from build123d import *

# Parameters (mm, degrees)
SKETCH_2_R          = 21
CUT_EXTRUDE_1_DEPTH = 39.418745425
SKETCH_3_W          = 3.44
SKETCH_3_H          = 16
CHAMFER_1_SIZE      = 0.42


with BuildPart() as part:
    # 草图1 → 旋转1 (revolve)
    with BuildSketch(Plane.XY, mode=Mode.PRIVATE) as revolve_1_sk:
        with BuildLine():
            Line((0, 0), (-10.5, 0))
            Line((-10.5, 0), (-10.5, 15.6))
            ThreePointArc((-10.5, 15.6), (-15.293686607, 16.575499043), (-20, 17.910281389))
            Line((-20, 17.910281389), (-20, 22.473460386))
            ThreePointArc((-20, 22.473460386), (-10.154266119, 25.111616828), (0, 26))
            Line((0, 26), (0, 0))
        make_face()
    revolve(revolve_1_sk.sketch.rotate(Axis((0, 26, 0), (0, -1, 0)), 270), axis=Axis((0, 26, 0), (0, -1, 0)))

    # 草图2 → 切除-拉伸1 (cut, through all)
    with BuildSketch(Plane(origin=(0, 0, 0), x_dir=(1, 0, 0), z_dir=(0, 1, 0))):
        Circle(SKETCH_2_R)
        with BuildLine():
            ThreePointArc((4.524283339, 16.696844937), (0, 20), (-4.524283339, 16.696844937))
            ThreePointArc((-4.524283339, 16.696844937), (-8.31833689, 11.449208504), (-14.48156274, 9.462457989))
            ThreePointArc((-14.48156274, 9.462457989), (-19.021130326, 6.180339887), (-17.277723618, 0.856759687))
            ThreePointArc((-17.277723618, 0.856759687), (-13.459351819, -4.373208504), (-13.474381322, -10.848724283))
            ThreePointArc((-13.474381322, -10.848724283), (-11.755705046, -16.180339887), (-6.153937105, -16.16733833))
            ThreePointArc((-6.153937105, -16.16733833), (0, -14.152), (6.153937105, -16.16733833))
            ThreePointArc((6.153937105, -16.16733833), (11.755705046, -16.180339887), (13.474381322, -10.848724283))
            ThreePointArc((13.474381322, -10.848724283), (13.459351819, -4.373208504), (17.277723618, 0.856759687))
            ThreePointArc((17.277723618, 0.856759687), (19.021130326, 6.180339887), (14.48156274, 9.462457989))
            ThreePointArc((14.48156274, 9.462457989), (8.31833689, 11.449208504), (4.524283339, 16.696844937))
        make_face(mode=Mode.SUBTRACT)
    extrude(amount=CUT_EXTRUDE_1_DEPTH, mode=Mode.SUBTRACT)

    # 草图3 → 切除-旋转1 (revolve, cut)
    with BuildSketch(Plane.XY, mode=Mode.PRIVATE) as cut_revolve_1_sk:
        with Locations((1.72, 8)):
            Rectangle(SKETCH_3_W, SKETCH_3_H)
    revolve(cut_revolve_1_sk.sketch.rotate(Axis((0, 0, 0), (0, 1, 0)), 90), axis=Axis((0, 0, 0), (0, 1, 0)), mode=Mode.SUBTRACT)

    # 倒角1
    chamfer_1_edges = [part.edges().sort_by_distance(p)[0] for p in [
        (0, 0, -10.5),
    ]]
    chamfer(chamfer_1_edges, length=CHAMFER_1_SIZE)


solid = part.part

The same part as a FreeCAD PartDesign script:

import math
import FreeCAD as App
import Part
import Sketcher
from FreeCAD import Vector


def edges_at(feature, points):
    """Names of the edges that pass closest to the given points."""
    edges = feature.Shape.Edges
    near = lambda p: min(range(len(edges)), key=lambda i: edges[i].distToShape(Part.Vertex(*p))[0])
    return sorted({f"Edge{near(p) + 1}" for p in points})

doc = App.newDocument("Part")
body = doc.addObject("PartDesign::Body", "Body")

# Sketch on XY plane
sketch1 = body.newObject("Sketcher::SketchObject", "Sketch")
sketch1.AttachmentSupport = (doc.getObject("XY_Plane"), [""])
sketch1.MapMode = "FlatFace"
sketch1.addGeometry([
    Part.LineSegment(Vector(-10.5, 0, 0), Vector(0, 0, 0)),  # 0
    Part.LineSegment(Vector(0, 0, 0), Vector(0, 26, 0)),  # 1
    Part.ArcOfCircle(Part.Circle(Vector(0, -32.5, 0), Vector(0, 0, 1), 58.5), math.radians(90), math.radians(110)),  # 2
    Part.LineSegment(Vector(-20, 22.5, 0), Vector(-20, 17.9, 0)),  # 3
    Part.ArcOfCircle(Part.Circle(Vector(0, 79.5, 0), Vector(0, 0, 1), 64.7), math.radians(-108), math.radians(-99.34)),  # 4
    Part.LineSegment(Vector(-10.5, 15.6, 0), Vector(-10.5, 0, 0)),  # 5
], False)
sketch1.addConstraint([
    Sketcher.Constraint("Coincident", 0, 2, 1, 1),
    Sketcher.Constraint("Coincident", 1, 2, 2, 1),
    Sketcher.Constraint("Coincident", 2, 2, 3, 1),
    Sketcher.Constraint("Coincident", 3, 2, 4, 1),
    Sketcher.Constraint("Coincident", 4, 2, 5, 1),
    Sketcher.Constraint("Coincident", 5, 2, 0, 1),
    Sketcher.Constraint("Horizontal", 0),
    Sketcher.Constraint("Vertical", 1),
    Sketcher.Constraint("Vertical", 3),
    Sketcher.Constraint("Vertical", 5),
    Sketcher.Constraint("Coincident", 0, 2, -1, 1),
    Sketcher.Constraint("PointOnObject", 2, 3, -2),
    Sketcher.Constraint("PointOnObject", 4, 3, -2),
    Sketcher.Constraint("DistanceY", 1, 1, 1, 2, 26.0),
    Sketcher.Constraint("DistanceX", 0, 1, 0, 2, 10.5),
    Sketcher.Constraint("DistanceY", 5, 2, 5, 1, 15.6),
    Sketcher.Constraint("DistanceX", 2, 2, -1, 1, 20.0),
    Sketcher.Constraint("Radius", 2, 58.476088),
    Sketcher.Constraint("Radius", 4, 64.721359),
])
revolution = body.newObject("PartDesign::Revolution", "Revolution")
revolution.Profile = sketch1
revolution.ReferenceAxis = (sketch1, ["V_Axis"])
revolution.Angle = 360

# Sketch on XZ plane
sketch2 = body.newObject("Sketcher::SketchObject", "Sketch001")
sketch2.AttachmentSupport = (doc.getObject("XZ_Plane"), [""])
sketch2.MapMode = "FlatFace"
sketch2.addGeometry([
    Part.Circle(Vector(0, 0, 0), Vector(0, 0, 1), 21),  # 0
    Part.ArcOfCircle(Part.Circle(Vector(0, -15.2, 0), Vector(0, 0, 1), 4.8), math.radians(-162), math.radians(-18)),  # 1
    Part.ArcOfCircle(Part.Circle(Vector(14.4, -19.9, 0), Vector(0, 0, 1), 10.4), math.radians(90), math.radians(162)),  # 2
    Part.ArcOfCircle(Part.Circle(Vector(14.5, -4.7, 0), Vector(0, 0, 1), 4.8), math.radians(-90), math.radians(54)),  # 3
    Part.ArcOfCircle(Part.Circle(Vector(23.4, 7.6, 0), Vector(0, 0, 1), 10.4), math.radians(162), math.radians(234)),  # 4
    Part.ArcOfCircle(Part.Circle(Vector(9, 12.3, 0), Vector(0, 0, 1), 4.8), math.radians(-18), math.radians(126)),  # 5
    Part.ArcOfCircle(Part.Circle(Vector(0, 24.6, 0), Vector(0, 0, 1), 10.4), math.radians(-126), math.radians(-54)),  # 6
    Part.ArcOfCircle(Part.Circle(Vector(-9, 12.3, 0), Vector(0, 0, 1), 4.8), math.radians(54), math.radians(198)),  # 7
    Part.ArcOfCircle(Part.Circle(Vector(-23.4, 7.6, 0), Vector(0, 0, 1), 10.4), math.radians(-54), math.radians(18)),  # 8
    Part.ArcOfCircle(Part.Circle(Vector(-14.5, -4.7, 0), Vector(0, 0, 1), 4.8), math.radians(126), math.radians(270)),  # 9
    Part.ArcOfCircle(Part.Circle(Vector(-14.4, -19.9, 0), Vector(0, 0, 1), 10.4), math.radians(18), math.radians(90)),  # 10
], False)
sketch2.addConstraint([
    Sketcher.Constraint("Tangent", 1, 2, 2, 2),
    Sketcher.Constraint("Tangent", 2, 1, 3, 1),
    Sketcher.Constraint("Tangent", 3, 2, 4, 2),
    Sketcher.Constraint("Tangent", 4, 1, 5, 1),
    Sketcher.Constraint("Tangent", 5, 2, 6, 2),
    Sketcher.Constraint("Tangent", 6, 1, 7, 1),
    Sketcher.Constraint("Tangent", 7, 2, 8, 2),
    Sketcher.Constraint("Tangent", 8, 1, 9, 1),
    Sketcher.Constraint("Tangent", 9, 2, 10, 2),
    Sketcher.Constraint("Tangent", 10, 1, 1, 1),
    Sketcher.Constraint("Coincident", 0, 3, -1, 1),
    Sketcher.Constraint("Equal", 1, 3),
    Sketcher.Constraint("Equal", 2, 4),
    Sketcher.Constraint("Equal", 3, 5),
    Sketcher.Constraint("Equal", 4, 6),
    Sketcher.Constraint("Equal", 5, 7),
    Sketcher.Constraint("Equal", 6, 8),
    Sketcher.Constraint("Equal", 7, 9),
    Sketcher.Constraint("Equal", 8, 10),
    Sketcher.Constraint("Symmetric", 5, 3, 7, 3, -2),
    Sketcher.Constraint("Symmetric", 3, 3, 9, 3, -2),
    Sketcher.Constraint("PointOnObject", 1, 3, -2),
    Sketcher.Constraint("Diameter", 0, 42.0),
    Sketcher.Constraint("Radius", 1, 4.75),
    Sketcher.Constraint("DistanceY", 1, 3, -1, 1, 15.25),
    Sketcher.Constraint("Radius", 2, 10.403348),
    Sketcher.Constraint("DistanceX", 5, 3, 3, 2, 8.313999),
    Sketcher.Constraint("DistanceX", 5, 3, 4, 3, 14.389798),
    Sketcher.Constraint("DistanceX", -1, 1, 2, 3, 14.433271),
    Sketcher.Constraint("DistanceX", -1, 1, 3, 3, 14.503612),
])
pocket1 = body.newObject("PartDesign::Pocket", "Pocket")
pocket1.Profile = sketch2
pocket1.Type = "ThroughAll"

# Sketch on XY plane
sketch3 = body.newObject("Sketcher::SketchObject", "Sketch002")
sketch3.AttachmentSupport = (doc.getObject("XY_Plane"), [""])
sketch3.MapMode = "FlatFace"
sketch3.addGeometry([
    Part.LineSegment(Vector(0, 16, 0), Vector(0, 0, 0)),
    Part.LineSegment(Vector(0, 0, 0), Vector(3.4, 0, 0)),
    Part.LineSegment(Vector(3.4, 0, 0), Vector(3.4, 16, 0)),
    Part.LineSegment(Vector(3.4, 16, 0), Vector(0, 16, 0)),
], False)
sketch3.addConstraint([
    Sketcher.Constraint("Coincident", 0, 2, 1, 1),
    Sketcher.Constraint("Coincident", 1, 2, 2, 1),
    Sketcher.Constraint("Coincident", 2, 2, 3, 1),
    Sketcher.Constraint("Coincident", 3, 2, 0, 1),
    Sketcher.Constraint("Vertical", 0),
    Sketcher.Constraint("Horizontal", 1),
    Sketcher.Constraint("Vertical", 2),
    Sketcher.Constraint("Horizontal", 3),
    Sketcher.Constraint("Coincident", 0, 2, -1, 1),
    Sketcher.Constraint("DistanceY", 0, 2, 0, 1, 16.0),
    Sketcher.Constraint("DistanceX", 1, 1, 1, 2, 3.44),
])
groove = body.newObject("PartDesign::Groove", "Groove")
groove.Profile = sketch3
groove.ReferenceAxis = (sketch3, ["V_Axis"])
groove.Angle = 360
doc.recompute()

chamfer = body.newObject("PartDesign::Chamfer", "Chamfer")
chamfer.Base = (groove, edges_at(groove, [(0, 0, -10.5)]))
chamfer.Size = 0.42

doc.recompute()
